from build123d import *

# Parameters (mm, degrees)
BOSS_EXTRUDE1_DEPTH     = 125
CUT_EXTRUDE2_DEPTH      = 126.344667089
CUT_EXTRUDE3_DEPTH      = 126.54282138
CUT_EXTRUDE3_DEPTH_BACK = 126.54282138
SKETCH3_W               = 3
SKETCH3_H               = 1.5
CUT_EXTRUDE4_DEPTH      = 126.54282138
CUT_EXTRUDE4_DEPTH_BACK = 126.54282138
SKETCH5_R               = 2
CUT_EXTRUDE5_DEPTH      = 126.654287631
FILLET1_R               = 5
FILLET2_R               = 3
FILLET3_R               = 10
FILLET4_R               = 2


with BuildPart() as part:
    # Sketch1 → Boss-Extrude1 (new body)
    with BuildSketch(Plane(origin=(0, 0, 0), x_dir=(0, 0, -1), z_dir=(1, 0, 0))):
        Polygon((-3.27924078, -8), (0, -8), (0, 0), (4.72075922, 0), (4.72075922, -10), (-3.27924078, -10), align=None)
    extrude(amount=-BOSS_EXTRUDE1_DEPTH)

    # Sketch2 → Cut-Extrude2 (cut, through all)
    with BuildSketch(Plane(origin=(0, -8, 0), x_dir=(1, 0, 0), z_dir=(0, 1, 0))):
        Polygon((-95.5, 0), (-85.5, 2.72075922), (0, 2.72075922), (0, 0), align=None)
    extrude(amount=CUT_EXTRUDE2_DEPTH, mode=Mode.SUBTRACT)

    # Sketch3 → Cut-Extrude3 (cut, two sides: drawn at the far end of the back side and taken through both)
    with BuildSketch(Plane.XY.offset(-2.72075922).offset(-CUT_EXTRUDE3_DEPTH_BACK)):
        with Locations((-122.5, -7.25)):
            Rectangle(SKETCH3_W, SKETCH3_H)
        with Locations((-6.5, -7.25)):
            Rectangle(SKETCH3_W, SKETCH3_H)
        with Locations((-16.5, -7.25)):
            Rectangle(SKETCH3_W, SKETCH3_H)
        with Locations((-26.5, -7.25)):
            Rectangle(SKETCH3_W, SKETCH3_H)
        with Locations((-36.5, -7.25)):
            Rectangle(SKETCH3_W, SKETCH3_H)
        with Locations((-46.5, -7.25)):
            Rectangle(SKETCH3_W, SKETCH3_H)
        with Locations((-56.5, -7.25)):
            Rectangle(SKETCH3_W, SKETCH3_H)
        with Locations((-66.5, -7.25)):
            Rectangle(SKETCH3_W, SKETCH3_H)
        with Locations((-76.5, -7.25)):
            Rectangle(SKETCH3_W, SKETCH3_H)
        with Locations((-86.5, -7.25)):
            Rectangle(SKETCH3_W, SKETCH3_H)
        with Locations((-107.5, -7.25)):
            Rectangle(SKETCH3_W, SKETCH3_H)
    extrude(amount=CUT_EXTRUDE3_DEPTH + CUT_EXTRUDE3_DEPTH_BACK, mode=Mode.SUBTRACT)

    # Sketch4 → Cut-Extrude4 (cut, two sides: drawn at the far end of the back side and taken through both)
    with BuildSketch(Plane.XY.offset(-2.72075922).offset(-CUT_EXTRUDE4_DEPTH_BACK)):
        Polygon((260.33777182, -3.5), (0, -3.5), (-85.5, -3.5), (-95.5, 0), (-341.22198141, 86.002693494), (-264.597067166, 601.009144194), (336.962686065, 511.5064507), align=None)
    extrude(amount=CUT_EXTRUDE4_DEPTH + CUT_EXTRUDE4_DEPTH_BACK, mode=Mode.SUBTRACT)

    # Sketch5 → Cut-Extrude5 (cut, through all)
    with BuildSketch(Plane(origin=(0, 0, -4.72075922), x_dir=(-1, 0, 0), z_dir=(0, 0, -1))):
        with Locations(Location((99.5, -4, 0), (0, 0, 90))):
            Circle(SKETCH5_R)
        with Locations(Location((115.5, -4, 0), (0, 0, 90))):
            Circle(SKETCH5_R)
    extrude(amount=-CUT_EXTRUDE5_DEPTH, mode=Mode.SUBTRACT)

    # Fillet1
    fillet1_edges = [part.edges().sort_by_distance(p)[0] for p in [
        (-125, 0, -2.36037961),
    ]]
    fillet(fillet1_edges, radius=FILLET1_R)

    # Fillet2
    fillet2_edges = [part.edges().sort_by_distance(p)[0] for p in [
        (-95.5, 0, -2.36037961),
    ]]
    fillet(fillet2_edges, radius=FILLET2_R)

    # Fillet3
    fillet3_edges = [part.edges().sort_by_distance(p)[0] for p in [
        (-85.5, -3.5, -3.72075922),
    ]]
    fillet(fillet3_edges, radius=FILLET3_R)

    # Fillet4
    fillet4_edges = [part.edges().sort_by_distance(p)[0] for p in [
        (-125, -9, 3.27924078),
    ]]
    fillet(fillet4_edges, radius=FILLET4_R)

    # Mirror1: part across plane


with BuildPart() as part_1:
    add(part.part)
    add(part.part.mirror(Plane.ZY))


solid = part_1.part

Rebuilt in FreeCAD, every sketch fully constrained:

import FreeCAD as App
import Part
import Sketcher

V = App.Vector
Q = App.Units.Quantity


def edges_at(feature, points):
    """Names of the edges that pass closest to the given points."""
    edges = feature.Shape.Edges
    near = lambda p: min(range(len(edges)), key=lambda i: edges[i].distToShape(Part.Vertex(*p))[0])
    return sorted({f"Edge{near(p) + 1}" for p in points})

doc = App.newDocument("Part")
body = doc.addObject("PartDesign::Body", "Body")

# Sketch on YZ plane
sketch1 = doc.addObject("Sketcher::SketchObject", "Sketch")
body.addObject(sketch1)
sketch1.AttachmentSupport = (doc.YZ_Plane, [""])
sketch1.MapMode = "FlatFace"
sketch1.addGeometry([
    Part.LineSegment(V(-8, 0, 0), V(-8, 3.3, 0)),  # 0
    Part.LineSegment(V(-8, 3.3, 0), V(-10, 3.3, 0)),  # 1
    Part.LineSegment(V(-10, 3.3, 0), V(-10, -4.7, 0)),  # 2
    Part.LineSegment(V(-10, -4.7, 0), V(0, -4.7, 0)),  # 3
    Part.LineSegment(V(0, -4.7, 0), V(0, 0, 0)),  # 4
    Part.LineSegment(V(0, 0, 0), V(-8, 0, 0)),  # 5
], False)
sketch1.addConstraint([
    Sketcher.Constraint("Coincident", 0, 2, 1, 1),
    Sketcher.Constraint("Coincident", 1, 2, 2, 1),
    Sketcher.Constraint("Coincident", 2, 2, 3, 1),
    Sketcher.Constraint("Coincident", 3, 2, 4, 1),
    Sketcher.Constraint("Coincident", 4, 2, 5, 1),
    Sketcher.Constraint("Coincident", 5, 2, 0, 1),
    Sketcher.Constraint("Vertical", 0),
    Sketcher.Constraint("Horizontal", 1),
    Sketcher.Constraint("Vertical", 2),
    Sketcher.Constraint("Horizontal", 3),
    Sketcher.Constraint("Vertical", 4),
    Sketcher.Constraint("Horizontal", 5),
    Sketcher.Constraint("Coincident", 4, 2, -1, 1),
    Sketcher.Constraint("Equal", 5, 2),
    Sketcher.Constraint("DistanceX", 1, 2, 1, 1, Q("2 mm")),
    Sketcher.Constraint("DistanceX", 3, 1, 3, 2, Q("10 mm")),
    Sketcher.Constraint("DistanceY", 0, 1, 0, 2, Q("3.279241 mm")),
])
pad1 = doc.addObject("PartDesign::Pad", "Pad")
body.addObject(pad1)
pad1.Profile = sketch1
pad1.Length = 125
pad1.Reversed = True

# Sketch on XZ plane
sketch2 = doc.addObject("Sketcher::SketchObject", "Sketch001")
body.addObject(sketch2)
sketch2.AttachmentSupport = (doc.XZ_Plane, [""])
sketch2.MapMode = "FlatFace"
sketch2.AttachmentOffset = App.Placement(V(0, 0, 8), App.Rotation())
sketch2.addGeometry([
    Part.LineSegment(V(-85.5, -2.7, 0), V(-95.5, 0, 0)),
    Part.LineSegment(V(-95.5, 0, 0), V(0, 0, 0)),
    Part.LineSegment(V(0, 0, 0), V(0, -2.7, 0)),
    Part.LineSegment(V(0, -2.7, 0), V(-85.5, -2.7, 0)),
], False)
sketch2.addConstraint([
    Sketcher.Constraint("Coincident", 0, 2, 1, 1),
    Sketcher.Constraint("Coincident", 1, 2, 2, 1),
    Sketcher.Constraint("Coincident", 2, 2, 3, 1),
    Sketcher.Constraint("Coincident", 3, 2, 0, 1),
    Sketcher.Constraint("Horizontal", 1),
    Sketcher.Constraint("Vertical", 2),
    Sketcher.Constraint("Horizontal", 3),
    Sketcher.Constraint("Coincident", 1, 2, -1, 1),
    Sketcher.Constraint("DistanceX", 1, 1, 1, 2, Q("95.5 mm")),
    Sketcher.Constraint("DistanceX", 3, 2, 3, 1, Q("85.5 mm")),
    Sketcher.Constraint("DistanceY", 2, 2, 2, 1, Q("2.720759 mm")),
])
pocket1 = doc.addObject("PartDesign::Pocket", "Pocket")
body.addObject(pocket1)
pocket1.Profile = sketch2
pocket1.Type = "ThroughAll"

# Sketch on XY plane
sketch3 = doc.addObject("Sketcher::SketchObject", "Sketch002")
body.addObject(sketch3)
sketch3.AttachmentSupport = (doc.XY_Plane, [""])
sketch3.MapMode = "FlatFace"
sketch3.AttachmentOffset = App.Placement(V(0, 0, -2.720759), App.Rotation())
sketch3.addGeometry([
    Part.LineSegment(V(-124, -6.5, 0), V(-124, -8, 0)),  # 0
    Part.LineSegment(V(-124, -8, 0), V(-121, -8, 0)),  # 1
    Part.LineSegment(V(-121, -8, 0), V(-121, -6.5, 0)),  # 2
    Part.LineSegment(V(-121, -6.5, 0), V(-124, -6.5, 0)),  # 3
    Part.LineSegment(V(-8, -6.5, 0), V(-8, -8, 0)),  # 4
    Part.LineSegment(V(-8, -8, 0), V(-5, -8, 0)),  # 5
    Part.LineSegment(V(-5, -8, 0), V(-5, -6.5, 0)),  # 6
    Part.LineSegment(V(-5, -6.5, 0), V(-8, -6.5, 0)),  # 7
    Part.LineSegment(V(-18, -6.5, 0), V(-18, -8, 0)),  # 8
    Part.LineSegment(V(-18, -8, 0), V(-15, -8, 0)),  # 9
    Part.LineSegment(V(-15, -8, 0), V(-15, -6.5, 0)),  # 10
    Part.LineSegment(V(-15, -6.5, 0), V(-18, -6.5, 0)),  # 11
    Part.LineSegment(V(-28, -6.5, 0), V(-28, -8, 0)),  # 12
    Part.LineSegment(V(-28, -8, 0), V(-25, -8, 0)),  # 13
    Part.LineSegment(V(-25, -8, 0), V(-25, -6.5, 0)),  # 14
    Part.LineSegment(V(-25, -6.5, 0), V(-28, -6.5, 0)),  # 15
    Part.LineSegment(V(-38, -6.5, 0), V(-38, -8, 0)),  # 16
    Part.LineSegment(V(-38, -8, 0), V(-35, -8, 0)),  # 17
    Part.LineSegment(V(-35, -8, 0), V(-35, -6.5, 0)),  # 18
    Part.LineSegment(V(-35, -6.5, 0), V(-38, -6.5, 0)),  # 19
    Part.LineSegment(V(-48, -6.5, 0), V(-48, -8, 0)),  # 20
    Part.LineSegment(V(-48, -8, 0), V(-45, -8, 0)),  # 21
    Part.LineSegment(V(-45, -8, 0), V(-45, -6.5, 0)),  # 22
    Part.LineSegment(V(-45, -6.5, 0), V(-48, -6.5, 0)),  # 23
    Part.LineSegment(V(-58, -6.5, 0), V(-58, -8, 0)),  # 24
    Part.LineSegment(V(-58, -8, 0), V(-55, -8, 0)),  # 25
    Part.LineSegment(V(-55, -8, 0), V(-55, -6.5, 0)),  # 26
    Part.LineSegment(V(-55, -6.5, 0), V(-58, -6.5, 0)),  # 27
    Part.LineSegment(V(-68, -6.5, 0), V(-68, -8, 0)),  # 28
    Part.LineSegment(V(-68, -8, 0), V(-65, -8, 0)),  # 29
    Part.LineSegment(V(-65, -8, 0), V(-65, -6.5, 0)),  # 30
    Part.LineSegment(V(-65, -6.5, 0), V(-68, -6.5, 0)),  # 31
    Part.LineSegment(V(-78, -6.5, 0), V(-78, -8, 0)),  # 32
    Part.LineSegment(V(-78, -8, 0), V(-75, -8, 0)),  # 33
    Part.LineSegment(V(-75, -8, 0), V(-75, -6.5, 0)),  # 34
    Part.LineSegment(V(-75, -6.5, 0), V(-78, -6.5, 0)),  # 35
    Part.LineSegment(V(-88, -6.5, 0), V(-88, -8, 0)),  # 36
    Part.LineSegment(V(-88, -8, 0), V(-85, -8, 0)),  # 37
    Part.LineSegment(V(-85, -8, 0), V(-85, -6.5, 0)),  # 38
    Part.LineSegment(V(-85, -6.5, 0), V(-88, -6.5, 0)),  # 39
    Part.LineSegment(V(-109, -6.5, 0), V(-109, -8, 0)),  # 40
    Part.LineSegment(V(-109, -8, 0), V(-106, -8, 0)),  # 41
    Part.LineSegment(V(-106, -8, 0), V(-106, -6.5, 0)),  # 42
    Part.LineSegment(V(-106, -6.5, 0), V(-109, -6.5, 0)),  # 43
], False)
sketch3.addConstraint([
    Sketcher.Constraint("Coincident", 0, 2, 1, 1),
    Sketcher.Constraint("Coincident", 1, 2, 2, 1),
    Sketcher.Constraint("Coincident", 2, 2, 3, 1),
    Sketcher.Constraint("Coincident", 3, 2, 0, 1),
    Sketcher.Constraint("Coincident", 4, 2, 5, 1),
    Sketcher.Constraint("Coincident", 5, 2, 6, 1),
    Sketcher.Constraint("Coincident", 6, 2, 7, 1),
    Sketcher.Constraint("Coincident", 7, 2, 4, 1),
    Sketcher.Constraint("Coincident", 8, 2, 9, 1),
    Sketcher.Constraint("Coincident", 9, 2, 10, 1),
    Sketcher.Constraint("Coincident", 10, 2, 11, 1),
    Sketcher.Constraint("Coincident", 11, 2, 8, 1),
    Sketcher.Constraint("Coincident", 12, 2, 13, 1),
    Sketcher.Constraint("Coincident", 13, 2, 14, 1),
    Sketcher.Constraint("Coincident", 14, 2, 15, 1),
    Sketcher.Constraint("Coincident", 15, 2, 12, 1),
    Sketcher.Constraint("Coincident", 16, 2, 17, 1),
    Sketcher.Constraint("Coincident", 17, 2, 18, 1),
    Sketcher.Constraint("Coincident", 18, 2, 19, 1),
    Sketcher.Constraint("Coincident", 19, 2, 16, 1),
    Sketcher.Constraint("Coincident", 20, 2, 21, 1),
    Sketcher.Constraint("Coincident", 21, 2, 22, 1),
    Sketcher.Constraint("Coincident", 22, 2, 23, 1),
    Sketcher.Constraint("Coincident", 23, 2, 20, 1),
    Sketcher.Constraint("Coincident", 24, 2, 25, 1),
    Sketcher.Constraint("Coincident", 25, 2, 26, 1),
    Sketcher.Constraint("Coincident", 26, 2, 27, 1),
    Sketcher.Constraint("Coincident", 27, 2, 24, 1),
    Sketcher.Constraint("Coincident", 28, 2, 29, 1),
    Sketcher.Constraint("Coincident", 29, 2, 30, 1),
    Sketcher.Constraint("Coincident", 30, 2, 31, 1),
    Sketcher.Constraint("Coincident", 31, 2, 28, 1),
    Sketcher.Constraint("Coincident", 32, 2, 33, 1),
    Sketcher.Constraint("Coincident", 33, 2, 34, 1),
    Sketcher.Constraint("Coincident", 34, 2, 35, 1),
    Sketcher.Constraint("Coincident", 35, 2, 32, 1),
    Sketcher.Constraint("Coincident", 36, 2, 37, 1),
    Sketcher.Constraint("Coincident", 37, 2, 38, 1),
    Sketcher.Constraint("Coincident", 38, 2, 39, 1),
    Sketcher.Constraint("Coincident", 39, 2, 36, 1),
    Sketcher.Constraint("Coincident", 40, 2, 41, 1),
    Sketcher.Constraint("Coincident", 41, 2, 42, 1),
    Sketcher.Constraint("Coincident", 42, 2, 43, 1),
    Sketcher.Constraint("Coincident", 43, 2, 40, 1),
    Sketcher.Constraint("Vertical", 0),
    Sketcher.Constraint("Horizontal", 1),
    Sketcher.Constraint("Vertical", 2),
    Sketcher.Constraint("Horizontal", 3),
    Sketcher.Constraint("Vertical", 4),
    Sketcher.Constraint("Horizontal", 5),
    Sketcher.Constraint("Vertical", 6),
    Sketcher.Constraint("Horizontal", 7),
    Sketcher.Constraint("Vertical", 8),
    Sketcher.Constraint("Horizontal", 9),
    Sketcher.Constraint("Vertical", 10),
    Sketcher.Constraint("Horizontal", 11),
    Sketcher.Constraint("Vertical", 12),
    Sketcher.Constraint("Horizontal", 13),
    Sketcher.Constraint("Vertical", 14),
    Sketcher.Constraint("Horizontal", 15),
    Sketcher.Constraint("Vertical", 16),
    Sketcher.Constraint("Horizontal", 17),
    Sketcher.Constraint("Vertical", 18),
    Sketcher.Constraint("Horizontal", 19),
    Sketcher.Constraint("Vertical", 20),
    Sketcher.Constraint("Horizontal", 21),
    Sketcher.Constraint("Vertical", 22),
    Sketcher.Constraint("Horizontal", 23),
    Sketcher.Constraint("Vertical", 24),
    Sketcher.Constraint("Horizontal", 25),
    Sketcher.Constraint("Vertical", 26),
    Sketcher.Constraint("Horizontal", 27),
    Sketcher.Constraint("Vertical", 28),
    Sketcher.Constraint("Horizontal", 29),
    Sketcher.Constraint("Vertical", 30),
    Sketcher.Constraint("Horizontal", 31),
    Sketcher.Constraint("Vertical", 32),
    Sketcher.Constraint("Horizontal", 33),
    Sketcher.Constraint("Vertical", 34),
    Sketcher.Constraint("Horizontal", 35),
    Sketcher.Constraint("Vertical", 36),
    Sketcher.Constraint("Horizontal", 37),
    Sketcher.Constraint("Vertical", 38),
    Sketcher.Constraint("Horizontal", 39),
    Sketcher.Constraint("Vertical", 40),
    Sketcher.Constraint("Horizontal", 41),
    Sketcher.Constraint("Vertical", 42),
    Sketcher.Constraint("Horizontal", 43),
    Sketcher.Constraint("Horizontal", 1, 2, 4, 2),
    Sketcher.Constraint("Horizontal", 3, 2, 6, 2),
    Sketcher.Constraint("Horizontal", 5, 2, 8, 2),
    Sketcher.Constraint("Horizontal", 7, 2, 10, 2),
    Sketcher.Constraint("Horizontal", 9, 2, 12, 2),
    Sketcher.Constraint("Horizontal", 11, 2, 14, 2),
    Sketcher.Constraint("Horizontal", 13, 2, 16, 2),
    Sketcher.Constraint("Horizontal", 15, 2, 18, 2),
    Sketcher.Constraint("Horizontal", 17, 2, 20, 2),
    Sketcher.Constraint("Horizontal", 19, 2, 22, 2),
    Sketcher.Constraint("Horizontal", 21, 2, 24, 2),
    Sketcher.Constraint("Horizontal", 23, 2, 26, 2),
    Sketcher.Constraint("Horizontal", 25, 2, 28, 2),
    Sketcher.Constraint("Horizontal", 27, 2, 30, 2),
    Sketcher.Constraint("Horizontal", 29, 2, 32, 2),
    Sketcher.Constraint("Horizontal", 31, 2, 34, 2),
    Sketcher.Constraint("Horizontal", 33, 2, 36, 2),
    Sketcher.Constraint("Horizontal", 35, 2, 38, 2),
    Sketcher.Constraint("Horizontal", 37, 2, 40, 2),
    Sketcher.Constraint("Horizontal", 39, 2, 42, 2),
    Sketcher.Constraint("Equal", 3, 5),
    Sketcher.Constraint("Equal", 7, 9),
    Sketcher.Constraint("Equal", 11, 13),
    Sketcher.Constraint("Equal", 15, 17),
    Sketcher.Constraint("Equal", 19, 21),
    Sketcher.Constraint("Equal", 23, 25),
    Sketcher.Constraint("Equal", 27, 29),
    Sketcher.Constraint("Equal", 31, 33),
    Sketcher.Constraint("Equal", 35, 37),
    Sketcher.Constraint("Equal", 39, 41),
    Sketcher.Constraint("DistanceX", 1, 1, 1, 2, Q("3 mm")),
    Sketcher.Constraint("DistanceY", 0, 2, 0, 1, Q("1.5 mm")),
    Sketcher.Constraint("DistanceX", 0, 2, -1, 1, Q("124 mm")),
    Sketcher.Constraint("DistanceY", 0, 2, -1, 1, Q("8 mm")),
    Sketcher.Constraint("DistanceX", 4, 2, -1, 1, Q("8 mm")),
    Sketcher.Constraint("DistanceX", 8, 2, -1, 1, Q("18 mm")),
    Sketcher.Constraint("DistanceX", 12, 2, -1, 1, Q("28 mm")),
    Sketcher.Constraint("DistanceX", 16, 2, -1, 1, Q("38 mm")),
    Sketcher.Constraint("DistanceX", 20, 2, -1, 1, Q("48 mm")),
    Sketcher.Constraint("DistanceX", 24, 2, -1, 1, Q("58 mm")),
    Sketcher.Constraint("DistanceX", 28, 2, -1, 1, Q("68 mm")),
    Sketcher.Constraint("DistanceX", 32, 2, -1, 1, Q("78 mm")),
    Sketcher.Constraint("DistanceX", 36, 2, -1, 1, Q("88 mm")),
    Sketcher.Constraint("DistanceX", 40, 2, -1, 1, Q("109 mm")),
])
pocket2 = doc.addObject("PartDesign::Pocket", "Pocket001")
body.addObject(pocket2)
pocket2.Profile = sketch3
pocket2.Type = "ThroughAll"
pocket2.Midplane = True

# Sketch on XY plane
sketch4 = doc.addObject("Sketcher::SketchObject", "Sketch003")
body.addObject(sketch4)
sketch4.AttachmentSupport = (doc.XY_Plane, [""])
sketch4.MapMode = "FlatFace"
sketch4.AttachmentOffset = App.Placement(V(0, 0, -2.720759), App.Rotation())
sketch4.addGeometry([
    Part.LineSegment(V(-86, -4, 0), V(260, -4, 0)),  # 0
    Part.LineSegment(V(260, -4, 0), V(337, 512, 0)),  # 1
    Part.LineSegment(V(337, 512, 0), V(-265, 601, 0)),  # 2
    Part.LineSegment(V(-265, 601, 0), V(-341, 86, 0)),  # 3
    Part.LineSegment(V(-341, 86, 0), V(-96, 0, 0)),  # 4
    Part.LineSegment(V(-96, 0, 0), V(-86, -4, 0)),  # 5
], False)
sketch4.addConstraint([
    Sketcher.Constraint("Coincident", 0, 2, 1, 1),
    Sketcher.Constraint("Coincident", 1, 2, 2, 1),
    Sketcher.Constraint("Coincident", 2, 2, 3, 1),
    Sketcher.Constraint("Coincident", 3, 2, 4, 1),
    Sketcher.Constraint("Coincident", 4, 2, 5, 1),
    Sketcher.Constraint("Coincident", 5, 2, 0, 1),
    Sketcher.Constraint("Horizontal", 0),
    Sketcher.Constraint("PointOnObject", 4, 2, -1),
    Sketcher.Constraint("Perpendicular", 1, 2),
    Sketcher.Constraint("Perpendicular", 2, 3),
    Sketcher.Constraint("Parallel", 4, 5),
    Sketcher.Constraint("Equal", 1, 3),
    Sketcher.Constraint("DistanceX", 4, 2, 5, 2, Q("10 mm")),
    Sketcher.Constraint("DistanceY", 0, 2, -1, 1, Q("3.5 mm")),
    Sketcher.Constraint("DistanceX", 4, 2, -1, 1, Q("95.5 mm")),
    Sketcher.Constraint("DistanceX", 0, 1, 0, 2, Q("345.837772 mm")),
    Sketcher.Constraint("Distance", 2, Q("608.181608 mm")),
    Sketcher.Constraint("DistanceY", -1, 1, 1, 2, Q("511.506451 mm")),
])
pocket3 = doc.addObject("PartDesign::Pocket", "Pocket002")
body.addObject(pocket3)
pocket3.Profile = sketch4
pocket3.Type = "ThroughAll"
pocket3.Midplane = True

# Sketch on XY plane
sketch5 = doc.addObject("Sketcher::SketchObject", "Sketch004")
body.addObject(sketch5)
sketch5.AttachmentSupport = (doc.XY_Plane, [""])
sketch5.MapMode = "FlatFace"
sketch5.AttachmentOffset = App.Placement(V(0, 0, -4.720759), App.Rotation())
sketch5.addGeometry([
    Part.Circle(V(-99.5, -4, 0), V(0, 0, 1), 2),
    Part.Circle(V(-115.5, -4, 0), V(0, 0, 1), 2),
], False)
sketch5.addConstraint([
    Sketcher.Constraint("Equal", 0, 1),
    Sketcher.Constraint("Horizontal", 0, 3, 1, 3),
    Sketcher.Constraint("Diameter", 0, Q("4 mm")),
    Sketcher.Constraint("DistanceY", 0, 3, -1, 1, Q("4 mm")),
    Sketcher.Constraint("DistanceX", 1, 3, 0, 3, Q("16 mm")),
    Sketcher.Constraint("DistanceX", 0, 3, -1, 1, Q("99.5 mm")),
])
pocket4 = doc.addObject("PartDesign::Pocket", "Pocket003")
body.addObject(pocket4)
pocket4.Profile = sketch5
pocket4.Type = "ThroughAll"
pocket4.Reversed = True
doc.recompute()

fillet = doc.addObject("PartDesign::Fillet", "Fillet")
body.addObject(fillet)
fillet.Base = (pocket4, edges_at(pocket4, [(-125, 0, -2.36)]))
fillet.Radius = 5
doc.recompute()

fillet2 = doc.addObject("PartDesign::Fillet", "Fillet001")
body.addObject(fillet2)
fillet2.Base = (fillet, edges_at(fillet, [(-95.5, 0, -2.36)]))
fillet2.Radius = 3
doc.recompute()

fillet3 = doc.addObject("PartDesign::Fillet", "Fillet002")
body.addObject(fillet3)
fillet3.Base = (fillet2, edges_at(fillet2, [(-85.5, -3.5, -3.721)]))
fillet3.Radius = 10
doc.recompute()

fillet4 = doc.addObject("PartDesign::Fillet", "Fillet003")
body.addObject(fillet4)
fillet4.Base = (fillet3, edges_at(fillet3, [(-125, -9, 3.279)]))
fillet4.Radius = 2
body2 = doc.addObject("PartDesign::Body", "Body001")
doc.recompute()

body2.BaseFeature = body
doc.recompute()

mirroring = doc.addObject("Part::Mirroring", "Mirroring")
mirroring.Source = body
mirroring.Base = V(0, 0, 0)
mirroring.Normal = V(-1, 0, 0)
body3 = doc.addObject("PartDesign::Body", "Body002")
body3.BaseFeature = mirroring
boolean = doc.addObject("PartDesign::Boolean", "Boolean")
body2.addObject(boolean)
boolean.Type = "Fuse"
boolean.addObjects([body3])
doc.recompute()
mirroring.Visibility = False

doc.recompute()
